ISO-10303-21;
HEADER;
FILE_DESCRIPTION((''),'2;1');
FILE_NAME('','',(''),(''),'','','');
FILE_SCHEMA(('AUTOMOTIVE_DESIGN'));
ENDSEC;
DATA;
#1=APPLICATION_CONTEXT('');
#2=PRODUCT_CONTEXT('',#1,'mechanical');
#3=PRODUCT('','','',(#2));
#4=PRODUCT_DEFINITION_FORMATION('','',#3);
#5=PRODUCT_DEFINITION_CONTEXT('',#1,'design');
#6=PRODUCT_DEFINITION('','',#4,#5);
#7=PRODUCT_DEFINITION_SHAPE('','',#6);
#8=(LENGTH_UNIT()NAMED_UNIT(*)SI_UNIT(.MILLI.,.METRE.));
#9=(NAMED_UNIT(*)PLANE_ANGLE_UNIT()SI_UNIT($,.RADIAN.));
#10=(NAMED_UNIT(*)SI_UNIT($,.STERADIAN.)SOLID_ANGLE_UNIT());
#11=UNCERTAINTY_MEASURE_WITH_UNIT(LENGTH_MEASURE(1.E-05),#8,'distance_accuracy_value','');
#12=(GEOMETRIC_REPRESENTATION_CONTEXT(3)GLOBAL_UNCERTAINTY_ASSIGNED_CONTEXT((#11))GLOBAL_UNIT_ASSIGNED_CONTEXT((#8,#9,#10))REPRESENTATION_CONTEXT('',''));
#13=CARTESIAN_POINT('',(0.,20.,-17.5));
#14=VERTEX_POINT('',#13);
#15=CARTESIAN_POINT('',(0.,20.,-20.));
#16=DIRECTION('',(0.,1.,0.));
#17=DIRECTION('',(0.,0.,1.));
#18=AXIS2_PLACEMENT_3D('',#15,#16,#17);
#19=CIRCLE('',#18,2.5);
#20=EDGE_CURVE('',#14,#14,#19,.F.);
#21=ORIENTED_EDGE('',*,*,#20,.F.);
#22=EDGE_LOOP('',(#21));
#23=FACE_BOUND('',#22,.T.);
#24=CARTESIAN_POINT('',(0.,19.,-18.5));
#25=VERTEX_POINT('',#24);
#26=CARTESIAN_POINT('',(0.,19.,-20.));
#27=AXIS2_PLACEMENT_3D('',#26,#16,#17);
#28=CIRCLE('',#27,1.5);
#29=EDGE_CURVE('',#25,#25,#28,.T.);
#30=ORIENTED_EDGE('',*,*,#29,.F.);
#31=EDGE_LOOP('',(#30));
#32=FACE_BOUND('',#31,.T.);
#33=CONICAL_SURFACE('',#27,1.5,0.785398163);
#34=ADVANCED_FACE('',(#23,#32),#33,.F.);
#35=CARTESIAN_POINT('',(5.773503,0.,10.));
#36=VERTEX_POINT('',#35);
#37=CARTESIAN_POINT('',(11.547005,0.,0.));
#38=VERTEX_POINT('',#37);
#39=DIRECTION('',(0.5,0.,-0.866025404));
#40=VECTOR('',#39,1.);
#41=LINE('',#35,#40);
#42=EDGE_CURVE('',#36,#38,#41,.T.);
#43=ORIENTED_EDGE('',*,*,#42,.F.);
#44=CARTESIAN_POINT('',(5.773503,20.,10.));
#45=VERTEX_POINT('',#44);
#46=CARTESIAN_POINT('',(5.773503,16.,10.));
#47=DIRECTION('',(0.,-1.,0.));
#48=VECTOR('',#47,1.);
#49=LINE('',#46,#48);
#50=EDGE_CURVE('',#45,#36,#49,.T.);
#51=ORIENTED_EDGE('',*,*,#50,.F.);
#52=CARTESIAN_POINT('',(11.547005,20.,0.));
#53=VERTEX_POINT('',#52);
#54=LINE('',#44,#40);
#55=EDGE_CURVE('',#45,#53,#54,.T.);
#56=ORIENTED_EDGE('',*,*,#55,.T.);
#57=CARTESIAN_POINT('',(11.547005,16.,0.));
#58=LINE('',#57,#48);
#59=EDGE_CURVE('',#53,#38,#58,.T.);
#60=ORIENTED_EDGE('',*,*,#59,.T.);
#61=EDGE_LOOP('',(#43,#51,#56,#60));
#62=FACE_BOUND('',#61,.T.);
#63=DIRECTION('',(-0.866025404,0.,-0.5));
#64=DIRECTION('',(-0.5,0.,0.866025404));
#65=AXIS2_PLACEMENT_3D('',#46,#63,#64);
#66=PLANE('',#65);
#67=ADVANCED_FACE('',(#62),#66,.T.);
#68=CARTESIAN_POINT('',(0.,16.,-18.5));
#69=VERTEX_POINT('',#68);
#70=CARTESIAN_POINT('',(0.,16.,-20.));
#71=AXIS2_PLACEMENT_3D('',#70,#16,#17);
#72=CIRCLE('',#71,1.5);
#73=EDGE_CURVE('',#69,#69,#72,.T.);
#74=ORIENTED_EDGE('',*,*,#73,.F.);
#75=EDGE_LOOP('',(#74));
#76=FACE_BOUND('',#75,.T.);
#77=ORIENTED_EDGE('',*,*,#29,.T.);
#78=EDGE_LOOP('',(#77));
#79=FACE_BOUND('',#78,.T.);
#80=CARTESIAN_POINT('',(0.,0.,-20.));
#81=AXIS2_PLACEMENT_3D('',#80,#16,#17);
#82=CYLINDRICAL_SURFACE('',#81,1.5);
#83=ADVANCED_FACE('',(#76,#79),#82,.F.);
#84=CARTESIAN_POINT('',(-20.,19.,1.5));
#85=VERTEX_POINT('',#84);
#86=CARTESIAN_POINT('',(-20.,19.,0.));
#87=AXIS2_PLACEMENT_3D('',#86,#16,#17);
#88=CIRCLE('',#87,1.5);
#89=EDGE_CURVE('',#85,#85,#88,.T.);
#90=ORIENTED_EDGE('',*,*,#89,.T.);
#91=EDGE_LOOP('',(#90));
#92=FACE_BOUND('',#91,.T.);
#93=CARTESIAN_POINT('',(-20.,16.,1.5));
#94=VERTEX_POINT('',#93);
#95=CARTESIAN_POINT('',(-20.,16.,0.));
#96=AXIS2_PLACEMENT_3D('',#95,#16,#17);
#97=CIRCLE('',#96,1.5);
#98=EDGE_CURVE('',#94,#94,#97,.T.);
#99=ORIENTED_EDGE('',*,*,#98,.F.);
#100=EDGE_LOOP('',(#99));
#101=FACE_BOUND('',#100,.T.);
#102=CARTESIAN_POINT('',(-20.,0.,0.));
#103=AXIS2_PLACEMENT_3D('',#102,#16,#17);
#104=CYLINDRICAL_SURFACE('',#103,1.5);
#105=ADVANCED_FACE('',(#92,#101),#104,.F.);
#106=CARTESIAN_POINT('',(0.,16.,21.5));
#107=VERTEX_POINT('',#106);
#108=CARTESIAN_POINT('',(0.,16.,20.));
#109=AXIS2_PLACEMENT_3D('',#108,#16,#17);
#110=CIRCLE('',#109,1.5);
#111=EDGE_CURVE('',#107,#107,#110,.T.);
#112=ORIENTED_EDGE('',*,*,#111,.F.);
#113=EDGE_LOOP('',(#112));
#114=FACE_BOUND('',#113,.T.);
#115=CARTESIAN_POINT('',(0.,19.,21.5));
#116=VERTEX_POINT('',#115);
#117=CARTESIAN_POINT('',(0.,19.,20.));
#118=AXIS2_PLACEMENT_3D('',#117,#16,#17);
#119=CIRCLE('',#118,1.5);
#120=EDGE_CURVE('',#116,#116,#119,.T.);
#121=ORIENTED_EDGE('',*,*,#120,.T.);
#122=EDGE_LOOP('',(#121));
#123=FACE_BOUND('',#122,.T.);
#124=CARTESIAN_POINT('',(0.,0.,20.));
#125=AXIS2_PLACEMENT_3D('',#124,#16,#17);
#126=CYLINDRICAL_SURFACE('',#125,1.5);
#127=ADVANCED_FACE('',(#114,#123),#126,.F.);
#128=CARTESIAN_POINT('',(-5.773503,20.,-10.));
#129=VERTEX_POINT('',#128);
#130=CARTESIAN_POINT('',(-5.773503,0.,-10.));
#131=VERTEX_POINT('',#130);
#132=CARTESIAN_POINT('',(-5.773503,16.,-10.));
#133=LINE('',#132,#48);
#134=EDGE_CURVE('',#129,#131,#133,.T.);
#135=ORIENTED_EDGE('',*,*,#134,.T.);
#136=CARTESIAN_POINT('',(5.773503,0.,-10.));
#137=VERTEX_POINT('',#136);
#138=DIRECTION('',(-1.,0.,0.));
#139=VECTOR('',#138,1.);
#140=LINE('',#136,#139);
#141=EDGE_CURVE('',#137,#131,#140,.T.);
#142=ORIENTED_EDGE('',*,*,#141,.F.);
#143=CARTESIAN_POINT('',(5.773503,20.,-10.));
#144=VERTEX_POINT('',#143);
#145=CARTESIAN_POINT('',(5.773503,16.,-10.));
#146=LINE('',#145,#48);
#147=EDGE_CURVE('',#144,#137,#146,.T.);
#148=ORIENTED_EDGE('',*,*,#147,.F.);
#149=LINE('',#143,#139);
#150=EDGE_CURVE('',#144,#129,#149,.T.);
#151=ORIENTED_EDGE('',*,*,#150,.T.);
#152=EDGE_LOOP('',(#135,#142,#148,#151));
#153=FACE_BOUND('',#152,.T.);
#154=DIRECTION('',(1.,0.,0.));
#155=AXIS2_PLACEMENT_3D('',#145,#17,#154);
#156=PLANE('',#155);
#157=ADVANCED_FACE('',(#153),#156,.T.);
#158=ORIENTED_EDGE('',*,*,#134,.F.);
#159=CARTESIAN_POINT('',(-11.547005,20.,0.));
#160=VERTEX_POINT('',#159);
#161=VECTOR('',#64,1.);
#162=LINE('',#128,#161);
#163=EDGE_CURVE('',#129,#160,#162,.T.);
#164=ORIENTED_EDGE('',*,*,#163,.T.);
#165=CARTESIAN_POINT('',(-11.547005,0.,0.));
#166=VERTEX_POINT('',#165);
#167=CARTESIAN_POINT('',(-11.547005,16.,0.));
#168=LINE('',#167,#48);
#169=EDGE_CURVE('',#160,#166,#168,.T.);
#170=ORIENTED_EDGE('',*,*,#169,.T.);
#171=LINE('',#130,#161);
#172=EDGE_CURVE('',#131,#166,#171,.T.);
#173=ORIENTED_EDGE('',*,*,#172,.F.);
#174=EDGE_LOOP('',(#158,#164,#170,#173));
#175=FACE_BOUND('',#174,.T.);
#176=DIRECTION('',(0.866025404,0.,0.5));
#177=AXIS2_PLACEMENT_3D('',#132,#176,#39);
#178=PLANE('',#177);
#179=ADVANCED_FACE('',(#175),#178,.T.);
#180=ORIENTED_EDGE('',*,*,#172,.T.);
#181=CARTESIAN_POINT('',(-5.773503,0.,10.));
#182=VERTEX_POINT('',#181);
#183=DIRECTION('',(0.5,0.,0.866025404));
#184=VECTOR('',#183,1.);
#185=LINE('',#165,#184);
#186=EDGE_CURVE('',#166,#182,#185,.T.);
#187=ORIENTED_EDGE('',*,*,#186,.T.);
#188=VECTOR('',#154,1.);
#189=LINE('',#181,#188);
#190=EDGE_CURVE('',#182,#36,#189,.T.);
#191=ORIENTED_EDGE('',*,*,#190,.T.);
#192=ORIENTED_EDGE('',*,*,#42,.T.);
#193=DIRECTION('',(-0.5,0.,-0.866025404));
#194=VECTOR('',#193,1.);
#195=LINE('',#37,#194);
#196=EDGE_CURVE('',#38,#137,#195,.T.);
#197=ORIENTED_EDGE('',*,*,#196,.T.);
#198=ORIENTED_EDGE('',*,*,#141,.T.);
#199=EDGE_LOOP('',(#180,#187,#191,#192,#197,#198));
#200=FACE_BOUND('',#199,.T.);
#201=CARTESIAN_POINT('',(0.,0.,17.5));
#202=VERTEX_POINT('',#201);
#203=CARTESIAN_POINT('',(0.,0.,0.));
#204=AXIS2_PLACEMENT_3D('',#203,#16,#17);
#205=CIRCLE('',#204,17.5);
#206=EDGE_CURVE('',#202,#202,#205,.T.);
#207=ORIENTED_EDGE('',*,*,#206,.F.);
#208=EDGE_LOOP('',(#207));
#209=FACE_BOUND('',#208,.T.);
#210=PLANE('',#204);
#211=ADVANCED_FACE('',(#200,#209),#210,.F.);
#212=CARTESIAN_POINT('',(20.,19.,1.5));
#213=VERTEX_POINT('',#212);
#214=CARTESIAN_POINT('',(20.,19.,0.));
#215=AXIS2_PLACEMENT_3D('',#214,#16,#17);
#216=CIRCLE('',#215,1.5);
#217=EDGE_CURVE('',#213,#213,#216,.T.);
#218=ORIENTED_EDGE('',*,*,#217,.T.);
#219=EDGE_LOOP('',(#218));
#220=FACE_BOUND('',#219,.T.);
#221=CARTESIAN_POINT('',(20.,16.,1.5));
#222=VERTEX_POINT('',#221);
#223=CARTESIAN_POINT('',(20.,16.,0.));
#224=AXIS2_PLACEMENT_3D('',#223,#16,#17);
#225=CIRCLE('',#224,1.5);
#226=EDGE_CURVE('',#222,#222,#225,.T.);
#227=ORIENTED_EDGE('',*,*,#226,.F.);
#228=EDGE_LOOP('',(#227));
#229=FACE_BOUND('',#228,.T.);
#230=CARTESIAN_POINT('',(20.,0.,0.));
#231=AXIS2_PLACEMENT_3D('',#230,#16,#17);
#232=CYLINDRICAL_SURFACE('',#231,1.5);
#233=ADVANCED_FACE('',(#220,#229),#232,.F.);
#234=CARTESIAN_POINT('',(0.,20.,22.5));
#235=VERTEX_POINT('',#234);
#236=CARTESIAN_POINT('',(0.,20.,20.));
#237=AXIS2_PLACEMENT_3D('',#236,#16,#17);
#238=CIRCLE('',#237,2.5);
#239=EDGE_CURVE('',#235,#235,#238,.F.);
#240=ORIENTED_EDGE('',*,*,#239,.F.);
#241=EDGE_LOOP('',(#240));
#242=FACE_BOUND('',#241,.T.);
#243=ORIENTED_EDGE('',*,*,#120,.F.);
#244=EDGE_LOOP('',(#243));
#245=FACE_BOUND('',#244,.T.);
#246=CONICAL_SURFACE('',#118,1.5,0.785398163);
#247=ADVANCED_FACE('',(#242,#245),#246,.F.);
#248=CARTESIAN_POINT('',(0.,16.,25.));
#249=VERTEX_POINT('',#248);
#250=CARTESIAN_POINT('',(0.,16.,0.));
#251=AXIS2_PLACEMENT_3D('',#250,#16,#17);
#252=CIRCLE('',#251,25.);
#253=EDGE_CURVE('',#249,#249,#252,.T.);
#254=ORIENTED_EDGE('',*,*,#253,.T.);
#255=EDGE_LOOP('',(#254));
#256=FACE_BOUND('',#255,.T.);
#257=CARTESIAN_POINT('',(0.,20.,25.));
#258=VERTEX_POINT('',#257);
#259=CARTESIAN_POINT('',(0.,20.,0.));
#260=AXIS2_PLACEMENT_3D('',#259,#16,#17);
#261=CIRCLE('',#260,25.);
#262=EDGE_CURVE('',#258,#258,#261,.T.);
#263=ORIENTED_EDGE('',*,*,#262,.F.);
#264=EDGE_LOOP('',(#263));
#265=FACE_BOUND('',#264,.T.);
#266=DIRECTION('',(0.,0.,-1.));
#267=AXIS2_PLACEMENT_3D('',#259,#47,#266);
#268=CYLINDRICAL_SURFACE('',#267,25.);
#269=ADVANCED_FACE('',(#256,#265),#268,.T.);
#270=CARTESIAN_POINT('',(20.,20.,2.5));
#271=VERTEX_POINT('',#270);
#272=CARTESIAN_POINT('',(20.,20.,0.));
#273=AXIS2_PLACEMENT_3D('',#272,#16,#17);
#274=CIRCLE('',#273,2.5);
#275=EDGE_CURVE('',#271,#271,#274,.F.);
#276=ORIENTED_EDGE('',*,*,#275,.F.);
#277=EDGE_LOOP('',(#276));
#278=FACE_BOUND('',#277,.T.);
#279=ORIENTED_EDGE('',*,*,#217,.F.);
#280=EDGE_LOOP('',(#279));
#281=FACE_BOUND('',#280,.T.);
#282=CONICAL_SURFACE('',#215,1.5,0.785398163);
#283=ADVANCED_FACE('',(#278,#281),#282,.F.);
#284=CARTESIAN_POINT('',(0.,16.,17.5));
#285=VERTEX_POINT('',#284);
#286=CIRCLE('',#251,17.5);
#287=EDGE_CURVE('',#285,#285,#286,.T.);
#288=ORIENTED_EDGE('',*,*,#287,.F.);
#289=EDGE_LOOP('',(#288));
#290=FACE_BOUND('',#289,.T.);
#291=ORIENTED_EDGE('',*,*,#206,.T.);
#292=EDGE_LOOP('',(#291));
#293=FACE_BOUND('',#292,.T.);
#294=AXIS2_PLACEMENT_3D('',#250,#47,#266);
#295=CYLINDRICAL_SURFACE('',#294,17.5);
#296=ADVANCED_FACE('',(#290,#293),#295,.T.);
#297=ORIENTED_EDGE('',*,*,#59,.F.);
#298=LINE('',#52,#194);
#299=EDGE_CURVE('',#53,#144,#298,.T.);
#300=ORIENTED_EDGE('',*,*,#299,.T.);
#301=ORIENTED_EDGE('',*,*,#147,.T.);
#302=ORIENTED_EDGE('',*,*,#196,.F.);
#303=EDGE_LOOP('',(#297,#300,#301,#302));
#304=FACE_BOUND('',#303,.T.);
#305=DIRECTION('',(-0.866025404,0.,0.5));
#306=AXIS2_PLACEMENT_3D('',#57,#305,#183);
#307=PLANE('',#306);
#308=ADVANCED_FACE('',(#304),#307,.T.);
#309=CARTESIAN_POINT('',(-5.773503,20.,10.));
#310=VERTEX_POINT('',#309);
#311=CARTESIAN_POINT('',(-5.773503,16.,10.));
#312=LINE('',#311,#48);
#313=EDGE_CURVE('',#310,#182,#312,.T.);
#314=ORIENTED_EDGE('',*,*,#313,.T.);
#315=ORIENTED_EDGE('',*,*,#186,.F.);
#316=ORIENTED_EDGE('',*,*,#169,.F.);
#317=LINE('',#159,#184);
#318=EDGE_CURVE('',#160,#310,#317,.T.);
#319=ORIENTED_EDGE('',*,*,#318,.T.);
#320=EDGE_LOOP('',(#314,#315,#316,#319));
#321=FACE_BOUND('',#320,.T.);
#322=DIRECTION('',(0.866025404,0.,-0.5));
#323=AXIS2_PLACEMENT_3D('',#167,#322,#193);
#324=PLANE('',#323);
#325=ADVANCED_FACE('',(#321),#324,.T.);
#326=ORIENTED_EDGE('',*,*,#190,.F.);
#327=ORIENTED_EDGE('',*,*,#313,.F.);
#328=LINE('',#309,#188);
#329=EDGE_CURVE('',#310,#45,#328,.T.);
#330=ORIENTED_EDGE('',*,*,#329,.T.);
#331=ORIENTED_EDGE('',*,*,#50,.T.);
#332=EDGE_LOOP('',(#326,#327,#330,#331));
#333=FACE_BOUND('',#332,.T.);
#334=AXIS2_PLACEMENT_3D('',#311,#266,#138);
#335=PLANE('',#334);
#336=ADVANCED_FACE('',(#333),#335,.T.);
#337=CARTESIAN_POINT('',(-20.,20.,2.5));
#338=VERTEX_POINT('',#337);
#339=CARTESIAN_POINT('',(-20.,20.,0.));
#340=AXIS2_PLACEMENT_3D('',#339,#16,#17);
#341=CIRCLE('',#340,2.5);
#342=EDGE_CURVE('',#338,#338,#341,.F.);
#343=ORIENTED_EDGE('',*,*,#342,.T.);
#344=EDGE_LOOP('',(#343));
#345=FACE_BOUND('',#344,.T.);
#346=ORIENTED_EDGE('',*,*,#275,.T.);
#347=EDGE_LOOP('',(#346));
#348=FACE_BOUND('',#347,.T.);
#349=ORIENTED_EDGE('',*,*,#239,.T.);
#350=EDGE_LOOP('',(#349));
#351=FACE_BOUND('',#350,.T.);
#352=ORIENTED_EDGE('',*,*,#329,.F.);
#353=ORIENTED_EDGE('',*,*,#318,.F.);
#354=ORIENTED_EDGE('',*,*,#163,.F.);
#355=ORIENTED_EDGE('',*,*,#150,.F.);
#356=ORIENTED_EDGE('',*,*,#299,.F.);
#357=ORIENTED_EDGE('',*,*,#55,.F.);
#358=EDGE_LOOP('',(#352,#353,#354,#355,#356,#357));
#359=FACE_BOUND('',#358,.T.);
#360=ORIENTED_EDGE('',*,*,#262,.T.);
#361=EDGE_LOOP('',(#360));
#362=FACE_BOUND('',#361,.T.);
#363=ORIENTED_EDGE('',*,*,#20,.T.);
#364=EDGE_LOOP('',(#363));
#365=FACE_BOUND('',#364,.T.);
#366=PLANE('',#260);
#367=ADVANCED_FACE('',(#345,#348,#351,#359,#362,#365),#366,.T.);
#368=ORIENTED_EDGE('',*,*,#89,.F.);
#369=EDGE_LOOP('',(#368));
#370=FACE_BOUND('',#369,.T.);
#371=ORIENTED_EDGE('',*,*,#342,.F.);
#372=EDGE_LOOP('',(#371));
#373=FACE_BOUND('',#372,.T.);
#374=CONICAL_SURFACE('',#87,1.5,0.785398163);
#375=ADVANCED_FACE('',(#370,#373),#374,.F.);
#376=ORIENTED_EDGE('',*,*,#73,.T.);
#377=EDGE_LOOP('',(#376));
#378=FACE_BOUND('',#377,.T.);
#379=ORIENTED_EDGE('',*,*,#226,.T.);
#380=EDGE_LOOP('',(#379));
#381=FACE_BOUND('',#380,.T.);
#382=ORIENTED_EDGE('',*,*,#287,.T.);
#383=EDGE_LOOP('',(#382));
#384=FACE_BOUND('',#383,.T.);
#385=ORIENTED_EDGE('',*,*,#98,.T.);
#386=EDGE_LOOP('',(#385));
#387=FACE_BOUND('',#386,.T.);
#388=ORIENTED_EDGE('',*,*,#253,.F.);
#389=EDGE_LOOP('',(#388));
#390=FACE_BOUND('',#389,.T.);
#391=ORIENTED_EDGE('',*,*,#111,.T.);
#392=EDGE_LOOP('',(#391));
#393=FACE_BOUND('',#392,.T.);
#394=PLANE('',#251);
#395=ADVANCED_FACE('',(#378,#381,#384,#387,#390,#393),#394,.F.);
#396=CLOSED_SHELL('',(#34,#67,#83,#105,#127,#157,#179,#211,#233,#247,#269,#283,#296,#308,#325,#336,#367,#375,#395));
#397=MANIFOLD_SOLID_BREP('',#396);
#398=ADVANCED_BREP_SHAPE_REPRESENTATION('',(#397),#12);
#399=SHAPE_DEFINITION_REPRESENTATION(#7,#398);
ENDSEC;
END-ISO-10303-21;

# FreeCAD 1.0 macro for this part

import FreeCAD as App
import Part
import Sketcher

V = App.Vector
Q = App.Units.Quantity


def edges_at(feature, points):
    """Names of the edges that pass closest to the given points."""
    edges = feature.Shape.Edges
    near = lambda p: min(range(len(edges)), key=lambda i: edges[i].distToShape(Part.Vertex(*p))[0])
    return sorted({f"Edge{near(p) + 1}" for p in points})


def add_polygon(sketch, points):
    """Adds a closed chain of lines whose ends are joined by coincident constraints."""
    first, n = sketch.GeometryCount, len(points)
    for a, b in zip(points, points[1:] + points[:1]):
        sketch.addGeometry(Part.LineSegment(App.Vector(*a, 0), App.Vector(*b, 0)), False)
    for i in range(n):
        sketch.addConstraint(Sketcher.Constraint("Coincident", first + i, 2, first + (i + 1) % n, 1))

doc = App.newDocument("Part")
body = doc.addObject("PartDesign::Body", "Body")

# Sketch on XZ plane
sketch1 = doc.addObject("Sketcher::SketchObject", "Sketch")
body.addObject(sketch1)
sketch1.AttachmentSupport = (doc.XZ_Plane, [""])
sketch1.MapMode = "FlatFace"
sketch1.addGeometry(Part.Circle(V(0, 0, 0), V(0, 0, 1), 18), False)  # 0
add_polygon(sketch1, [(12, 0), (6, 10), (-6, 10), (-12, 0), (-6, -10), (6, -10)])  # lines 1-6
sketch1.addConstraint(Sketcher.Constraint("Horizontal", 2))
sketch1.addConstraint(Sketcher.Constraint("Horizontal", 5))
sketch1.addConstraint(Sketcher.Constraint("Coincident", 0, 3, -1, 1))
sketch1.addConstraint(Sketcher.Constraint("Symmetric", 1, 2, 4, 2, -1, 1))
sketch1.addConstraint(Sketcher.Constraint("Symmetric", 3, 2, 6, 2, -1, 1))
sketch1.addConstraint(Sketcher.Constraint("PointOnObject", 3, 2, -1))
sketch1.addConstraint(Sketcher.Constraint("Parallel", 3, 6))
sketch1.addConstraint(Sketcher.Constraint("Vertical", 2, 2, 4, 2))
sketch1.addConstraint(Sketcher.Constraint("Diameter", 0, Q("35 mm")))
sketch1.addConstraint(Sketcher.Constraint("Angle", 1, Q("120 deg")))
sketch1.addConstraint(Sketcher.Constraint("DistanceY", -1, 1, 1, 2, Q("10 mm")))
sketch1.addConstraint(Sketcher.Constraint("DistanceX", 2, 2, 2, 1, Q("11.547005 mm")))
pad1 = doc.addObject("PartDesign::Pad", "Pad")
body.addObject(pad1)
pad1.Profile = sketch1
pad1.Length = 16
pad1.Reversed = True

# Sketch on XZ plane
sketch2 = doc.addObject("Sketcher::SketchObject", "Sketch001")
body.addObject(sketch2)
sketch2.AttachmentSupport = (doc.XZ_Plane, [""])
sketch2.MapMode = "FlatFace"
sketch2.AttachmentOffset = App.Placement(V(0, 0, -16), App.Rotation())
sketch2.addGeometry(Part.Circle(V(0, 0, 0), V(0, 0, 1), 25), False)
sketch2.addGeometry(Part.Circle(V(0, 0, 0), V(0, 0, 1), 12), False)
sketch2.addConstraint(Sketcher.Constraint("Coincident", 0, 3, -1, 1))
sketch2.addConstraint(Sketcher.Constraint("Coincident", 1, 3, -1, 1))
sketch2.addConstraint(Sketcher.Constraint("Diameter", 0, Q("50 mm")))
sketch2.addConstraint(Sketcher.Constraint("Diameter", 1, Q("25 mm")))
pad2 = doc.addObject("PartDesign::Pad", "Pad001")
body.addObject(pad2)
pad2.Profile = sketch2
pad2.Length = 4
pad2.Reversed = True

# Sketch on XZ plane
sketch3 = doc.addObject("Sketcher::SketchObject", "Sketch002")
body.addObject(sketch3)
sketch3.AttachmentSupport = (doc.XZ_Plane, [""])
sketch3.MapMode = "FlatFace"
sketch3.AttachmentOffset = App.Placement(V(0, 0, -20), App.Rotation())
sketch3.addGeometry(Part.Circle(V(0, -20, 0), V(0, 0, 1), 1.5), False)
sketch3.addGeometry(Part.Circle(V(20, 0, 0), V(0, 0, 1), 1.5), False)
sketch3.addGeometry(Part.Circle(V(0, 20, 0), V(0, 0, 1), 1.5), False)
sketch3.addGeometry(Part.Circle(V(-20, 0, 0), V(0, 0, 1), 1.5), False)
sketch3.addConstraint(Sketcher.Constraint("Equal", 0, 1))
sketch3.addConstraint(Sketcher.Constraint("Equal", 1, 2))
sketch3.addConstraint(Sketcher.Constraint("Equal", 2, 3))
sketch3.addConstraint(Sketcher.Constraint("Symmetric", 0, 3, 2, 3, -1, 1))
sketch3.addConstraint(Sketcher.Constraint("Symmetric", 1, 3, 3, 3, -1, 1))
sketch3.addConstraint(Sketcher.Constraint("PointOnObject", 0, 3, -2))
sketch3.addConstraint(Sketcher.Constraint("PointOnObject", 1, 3, -1))
sketch3.addConstraint(Sketcher.Constraint("Diameter", 0, Q("3 mm")))
sketch3.addConstraint(Sketcher.Constraint("DistanceY", 0, 3, -1, 1, Q("20 mm")))
sketch3.addConstraint(Sketcher.Constraint("DistanceX", -1, 1, 1, 3, Q("20 mm")))
pocket1 = doc.addObject("PartDesign::Pocket", "Pocket")
body.addObject(pocket1)
pocket1.Profile = sketch3
pocket1.Type = "ThroughAll"
pocket1.Reversed = True
doc.recompute()

chamfer = doc.addObject("PartDesign::Chamfer", "Chamfer")
body.addObject(chamfer)
chamfer.Base = (pocket1, edges_at(pocket1, [
    (0, 20, -21.5),
    (20, 20, -1.5),
    (0, 20, 18.5),
    (-20, 20, -1.5),
]))
chamfer.Size = 1

# Sketch on XZ plane
sketch4 = doc.addObject("Sketcher::SketchObject", "Sketch003")
body.addObject(sketch4)
sketch4.AttachmentSupport = (doc.XZ_Plane, [""])
sketch4.MapMode = "FlatFace"
sketch4.AttachmentOffset = App.Placement(V(0, 0, -16), App.Rotation())
sketch4.addGeometry(Part.Circle(V(0, 0, 0), V(0, 0, 1), 12), False)  # 0
add_polygon(sketch4, [(6, 10), (-6, 10), (-12, 0), (-6, -10), (6, -10), (12, 0)])  # lines 1-6
sketch4.addConstraint(Sketcher.Constraint("Horizontal", 1))
sketch4.addConstraint(Sketcher.Constraint("Horizontal", 4))
sketch4.addConstraint(Sketcher.Constraint("Coincident", 0, 3, -1, 1))
sketch4.addConstraint(Sketcher.Constraint("Symmetric", 1, 2, 4, 2, -1, 1))
sketch4.addConstraint(Sketcher.Constraint("Symmetric", 2, 2, 5, 2, -1, 1))
sketch4.addConstraint(Sketcher.Constraint("PointOnObject", 2, 2, -1))
sketch4.addConstraint(Sketcher.Constraint("Parallel", 3, 6))
sketch4.addConstraint(Sketcher.Constraint("Vertical", 1, 2, 3, 2))
sketch4.addConstraint(Sketcher.Constraint("Diameter", 0, Q("25 mm")))
sketch4.addConstraint(Sketcher.Constraint("Angle", 2, Q("-120 deg")))
sketch4.addConstraint(Sketcher.Constraint("DistanceY", -1, 1, 1, 2, Q("10 mm")))
sketch4.addConstraint(Sketcher.Constraint("DistanceX", 1, 2, 1, 1, Q("11.547005 mm")))
pad3 = doc.addObject("PartDesign::Pad", "Pad002")
body.addObject(pad3)
pad3.Profile = sketch4
pad3.Length = 4
pad3.Reversed = True

doc.recompute()
